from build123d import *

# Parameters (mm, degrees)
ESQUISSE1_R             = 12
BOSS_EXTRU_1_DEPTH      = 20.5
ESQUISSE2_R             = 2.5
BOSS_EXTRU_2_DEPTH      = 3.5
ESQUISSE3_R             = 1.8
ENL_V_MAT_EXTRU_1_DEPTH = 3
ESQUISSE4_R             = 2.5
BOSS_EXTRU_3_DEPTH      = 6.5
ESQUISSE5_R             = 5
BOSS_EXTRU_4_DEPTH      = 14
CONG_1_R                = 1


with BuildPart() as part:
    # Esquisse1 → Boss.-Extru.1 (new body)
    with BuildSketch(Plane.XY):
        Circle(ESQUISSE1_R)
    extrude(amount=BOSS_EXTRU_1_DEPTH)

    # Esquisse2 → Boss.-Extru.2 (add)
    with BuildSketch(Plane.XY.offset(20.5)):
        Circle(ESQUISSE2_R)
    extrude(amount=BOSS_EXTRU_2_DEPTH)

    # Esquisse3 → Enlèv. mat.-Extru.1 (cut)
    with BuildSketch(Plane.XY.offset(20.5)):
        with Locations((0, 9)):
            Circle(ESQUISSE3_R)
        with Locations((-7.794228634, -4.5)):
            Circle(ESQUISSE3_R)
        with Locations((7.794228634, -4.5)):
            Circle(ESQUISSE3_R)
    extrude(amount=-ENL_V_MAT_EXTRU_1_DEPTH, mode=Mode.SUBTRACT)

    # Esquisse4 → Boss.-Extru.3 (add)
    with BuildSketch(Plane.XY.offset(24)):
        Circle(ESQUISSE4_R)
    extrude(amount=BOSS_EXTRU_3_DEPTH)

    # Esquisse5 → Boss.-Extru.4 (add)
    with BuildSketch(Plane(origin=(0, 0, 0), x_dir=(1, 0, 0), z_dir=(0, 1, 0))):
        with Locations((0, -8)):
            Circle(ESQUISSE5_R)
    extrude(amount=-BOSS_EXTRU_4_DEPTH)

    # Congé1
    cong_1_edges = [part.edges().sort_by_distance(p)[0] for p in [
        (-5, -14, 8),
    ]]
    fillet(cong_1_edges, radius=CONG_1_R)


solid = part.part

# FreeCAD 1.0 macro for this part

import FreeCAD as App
import Part
import Sketcher
from FreeCAD import Vector


def edges_at(feature, points):
    """Names of the edges that pass closest to the given points."""
    edges = feature.Shape.Edges
    near = lambda p: min(range(len(edges)), key=lambda i: edges[i].distToShape(Part.Vertex(*p))[0])
    return sorted({f"Edge{near(p) + 1}" for p in points})

doc = App.newDocument("Part")
params = doc.addObject("Spreadsheet::Sheet", "Params")
for row, (alias, value) in enumerate([
    ("sketch1_diameter", "24 mm"),
    ("pad1_length", "20.5 mm"),
    ("sketch2_diameter", "5 mm"),
    ("pad2_length", "3.5 mm"),
    ("sketch3_diameter", "3.6 mm"),
    ("pocket1_length", "3 mm"),
    ("sketch4_diameter", "5 mm"),
    ("pad3_length", "6.5 mm"),
    ("sketch5_diameter", "10 mm"),
    ("pad4_length", "14 mm"),
    ("fillet_radius", "1 mm"),
], start=1):
    params.set(f"A{row}", alias)
    params.set(f"B{row}", "=" + value)
    params.setAlias(f"B{row}", alias)

body = doc.addObject("PartDesign::Body", "Body")

# Sketch on XY plane
sketch1 = body.newObject("Sketcher::SketchObject", "Sketch")
sketch1.AttachmentSupport = (doc.getObject("XY_Plane"), [""])
sketch1.MapMode = "FlatFace"
sketch1.addGeometry(Part.Circle(Vector(0, 0, 0), Vector(0, 0, 1), 12), False)
sketch1.addConstraint(Sketcher.Constraint("Coincident", 0, 3, -1, 1))
sketch1.addConstraint(Sketcher.Constraint("Diameter", 0, 24.0))
sketch1.setExpression("Constraints[1]", "Params.sketch1_diameter")
pad1 = body.newObject("PartDesign::Pad", "Pad")
pad1.Profile = sketch1
pad1.setExpression("Length", "Params.pad1_length")

# Sketch on XY plane
sketch2 = body.newObject("Sketcher::SketchObject", "Sketch001")
sketch2.AttachmentSupport = (doc.getObject("XY_Plane"), [""])
sketch2.MapMode = "FlatFace"
sketch2.AttachmentOffset = App.Placement(Vector(0, 0, 20.5), App.Rotation())
sketch2.addGeometry(Part.Circle(Vector(0, 0, 0), Vector(0, 0, 1), 2.5), False)
sketch2.addConstraint(Sketcher.Constraint("Coincident", 0, 3, -1, 1))
sketch2.addConstraint(Sketcher.Constraint("Diameter", 0, 5.0))
sketch2.setExpression("Constraints[1]", "Params.sketch2_diameter")
pad2 = body.newObject("PartDesign::Pad", "Pad001")
pad2.Profile = sketch2
pad2.setExpression("Length", "Params.pad2_length")

# Sketch on XY plane
sketch3 = body.newObject("Sketcher::SketchObject", "Sketch002")
sketch3.AttachmentSupport = (doc.getObject("XY_Plane"), [""])
sketch3.MapMode = "FlatFace"
sketch3.AttachmentOffset = App.Placement(Vector(0, 0, 20.5), App.Rotation())
sketch3.addGeometry(Part.Circle(Vector(0, 9, 0), Vector(0, 0, 1), 1.8), False)
sketch3.addGeometry(Part.Circle(Vector(-7.8, -4.5, 0), Vector(0, 0, 1), 1.8), False)
sketch3.addGeometry(Part.Circle(Vector(7.8, -4.5, 0), Vector(0, 0, 1), 1.8), False)
sketch3.addConstraint(Sketcher.Constraint("Equal", 0, 1))
sketch3.addConstraint(Sketcher.Constraint("Equal", 1, 2))
sketch3.addConstraint(Sketcher.Constraint("Symmetric", 1, 3, 2, 3, -2))
sketch3.addConstraint(Sketcher.Constraint("PointOnObject", 0, 3, -2))
sketch3.addConstraint(Sketcher.Constraint("Diameter", 0, 3.6))
sketch3.addConstraint(Sketcher.Constraint("DistanceY", -1, 1, 0, 3, 9.0))
sketch3.addConstraint(Sketcher.Constraint("DistanceY", 1, 3, -1, 1, 4.5))
sketch3.addConstraint(Sketcher.Constraint("DistanceX", 1, 3, -1, 1, 7.794229))
sketch3.setExpression("Constraints[4]", "Params.sketch3_diameter")
pocket1 = body.newObject("PartDesign::Pocket", "Pocket")
pocket1.Profile = sketch3
pocket1.setExpression("Length", "Params.pocket1_length")

# Sketch on XY plane
sketch4 = body.newObject("Sketcher::SketchObject", "Sketch003")
sketch4.AttachmentSupport = (doc.getObject("XY_Plane"), [""])
sketch4.MapMode = "FlatFace"
sketch4.AttachmentOffset = App.Placement(Vector(0, 0, 24), App.Rotation())
sketch4.addGeometry(Part.Circle(Vector(0, 0, 0), Vector(0, 0, 1), 2.5), False)
sketch4.addConstraint(Sketcher.Constraint("Coincident", 0, 3, -1, 1))
sketch4.addConstraint(Sketcher.Constraint("Diameter", 0, 5.0))
sketch4.setExpression("Constraints[1]", "Params.sketch4_diameter")
pad3 = body.newObject("PartDesign::Pad", "Pad002")
pad3.Profile = sketch4
pad3.setExpression("Length", "Params.pad3_length")

# Sketch on XZ plane
sketch5 = body.newObject("Sketcher::SketchObject", "Sketch004")
sketch5.AttachmentSupport = (doc.getObject("XZ_Plane"), [""])
sketch5.MapMode = "FlatFace"
sketch5.addGeometry(Part.Circle(Vector(0, 8, 0), Vector(0, 0, 1), 5), False)
sketch5.addConstraint(Sketcher.Constraint("PointOnObject", 0, 3, -2))
sketch5.addConstraint(Sketcher.Constraint("Diameter", 0, 10.0))
sketch5.addConstraint(Sketcher.Constraint("DistanceY", -1, 1, 0, 3, 8.0))
sketch5.setExpression("Constraints[1]", "Params.sketch5_diameter")
pad4 = body.newObject("PartDesign::Pad", "Pad003")
pad4.Profile = sketch5
pad4.setExpression("Length", "Params.pad4_length")
doc.recompute()

fillet = body.newObject("PartDesign::Fillet", "Fillet")
fillet.Base = (pad4, edges_at(pad4, [(-5, -14, 8)]))
fillet.setExpression("Radius", "Params.fillet_radius")

doc.recompute()
